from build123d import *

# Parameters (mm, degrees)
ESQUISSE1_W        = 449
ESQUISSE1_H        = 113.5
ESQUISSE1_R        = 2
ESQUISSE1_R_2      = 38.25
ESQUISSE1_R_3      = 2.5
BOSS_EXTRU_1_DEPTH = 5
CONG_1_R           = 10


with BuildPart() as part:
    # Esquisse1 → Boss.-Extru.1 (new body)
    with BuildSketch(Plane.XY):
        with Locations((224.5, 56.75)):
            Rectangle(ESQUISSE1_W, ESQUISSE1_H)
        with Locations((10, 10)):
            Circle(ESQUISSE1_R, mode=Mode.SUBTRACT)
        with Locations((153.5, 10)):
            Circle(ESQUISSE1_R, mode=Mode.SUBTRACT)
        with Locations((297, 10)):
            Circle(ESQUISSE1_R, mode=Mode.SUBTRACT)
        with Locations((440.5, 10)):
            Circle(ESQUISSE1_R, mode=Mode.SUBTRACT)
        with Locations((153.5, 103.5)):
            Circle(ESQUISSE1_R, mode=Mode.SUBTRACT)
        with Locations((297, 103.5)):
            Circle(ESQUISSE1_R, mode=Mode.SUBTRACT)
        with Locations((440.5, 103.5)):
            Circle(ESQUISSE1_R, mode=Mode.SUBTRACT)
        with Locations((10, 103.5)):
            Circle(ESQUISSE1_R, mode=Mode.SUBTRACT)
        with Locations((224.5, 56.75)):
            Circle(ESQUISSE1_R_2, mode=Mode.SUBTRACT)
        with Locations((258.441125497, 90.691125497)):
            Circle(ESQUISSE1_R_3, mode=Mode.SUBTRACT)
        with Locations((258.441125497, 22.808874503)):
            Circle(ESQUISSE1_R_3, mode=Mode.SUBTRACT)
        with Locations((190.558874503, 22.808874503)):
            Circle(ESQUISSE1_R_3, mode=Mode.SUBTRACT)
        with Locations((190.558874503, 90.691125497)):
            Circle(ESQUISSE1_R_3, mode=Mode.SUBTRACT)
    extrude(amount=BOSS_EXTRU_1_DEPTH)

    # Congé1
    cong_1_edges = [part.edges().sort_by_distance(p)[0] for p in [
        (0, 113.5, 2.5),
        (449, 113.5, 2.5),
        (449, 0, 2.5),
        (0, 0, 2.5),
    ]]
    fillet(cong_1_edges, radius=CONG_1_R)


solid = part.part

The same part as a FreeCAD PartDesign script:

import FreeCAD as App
import Part
import Sketcher
from FreeCAD import Vector
Q = App.Units.Quantity


def edges_at(feature, points):
    """Names of the edges that pass closest to the given points."""
    edges = feature.Shape.Edges
    near = lambda p: min(range(len(edges)), key=lambda i: edges[i].distToShape(Part.Vertex(*p))[0])
    return sorted({f"Edge{near(p) + 1}" for p in points})


def add_polygon(sketch, points):
    """Adds a closed chain of lines whose ends are joined by coincident constraints."""
    first, n = sketch.GeometryCount, len(points)
    for a, b in zip(points, points[1:] + points[:1]):
        sketch.addGeometry(Part.LineSegment(App.Vector(*a, 0), App.Vector(*b, 0)), False)
    for i in range(n):
        sketch.addConstraint(Sketcher.Constraint("Coincident", first + i, 2, first + (i + 1) % n, 1))

doc = App.newDocument("Part")
body = doc.addObject("PartDesign::Body", "Body")

sketch1 = body.newObject("Sketcher::SketchObject", "Sketch")
sketch1.AttachmentSupport = (doc.getObject("XY_Plane"), [""])
sketch1.MapMode = "FlatFace"
add_polygon(sketch1, [(0, 113.5), (0, 0), (449, 0), (449, 113.5)])
sketch1.addGeometry(Part.Circle(Vector(10, 10, 0), Vector(0, 0, 1), 2), False)
sketch1.addGeometry(Part.Circle(Vector(153.5, 10, 0), Vector(0, 0, 1), 2), False)
sketch1.addGeometry(Part.Circle(Vector(190.6, 22.8, 0), Vector(0, 0, 1), 2.5), False)
sketch1.addGeometry(Part.Circle(Vector(297, 10, 0), Vector(0, 0, 1), 2), False)
sketch1.addGeometry(Part.Circle(Vector(258.4, 22.8, 0), Vector(0, 0, 1), 2.5), False)
sketch1.addGeometry(Part.Circle(Vector(440.5, 10, 0), Vector(0, 0, 1), 2), False)
sketch1.addGeometry(Part.Circle(Vector(224.5, 56.8, 0), Vector(0, 0, 1), 38.2), False)
sketch1.addGeometry(Part.Circle(Vector(10, 103.5, 0), Vector(0, 0, 1), 2), False)
sketch1.addGeometry(Part.Circle(Vector(190.6, 90.7, 0), Vector(0, 0, 1), 2.5), False)
sketch1.addGeometry(Part.Circle(Vector(153.5, 103.5, 0), Vector(0, 0, 1), 2), False)
sketch1.addGeometry(Part.Circle(Vector(258.4, 90.7, 0), Vector(0, 0, 1), 2.5), False)
sketch1.addGeometry(Part.Circle(Vector(297, 103.5, 0), Vector(0, 0, 1), 2), False)
sketch1.addGeometry(Part.Circle(Vector(440.5, 103.5, 0), Vector(0, 0, 1), 2), False)
sketch1.addConstraint(Sketcher.Constraint("Vertical", 0))
sketch1.addConstraint(Sketcher.Constraint("Horizontal", 1))
sketch1.addConstraint(Sketcher.Constraint("Vertical", 2))
sketch1.addConstraint(Sketcher.Constraint("Horizontal", 3))
sketch1.addConstraint(Sketcher.Constraint("Coincident", 0, 2, -1, 1))
sketch1.addConstraint(Sketcher.Constraint("Equal", 4, 5))
sketch1.addConstraint(Sketcher.Constraint("Equal", 5, 7))
sketch1.addConstraint(Sketcher.Constraint("Equal", 6, 8))
sketch1.addConstraint(Sketcher.Constraint("Equal", 7, 9))
sketch1.addConstraint(Sketcher.Constraint("Equal", 9, 11))
sketch1.addConstraint(Sketcher.Constraint("Equal", 8, 12))
sketch1.addConstraint(Sketcher.Constraint("Equal", 11, 13))
sketch1.addConstraint(Sketcher.Constraint("Equal", 12, 14))
sketch1.addConstraint(Sketcher.Constraint("Equal", 13, 15))
sketch1.addConstraint(Sketcher.Constraint("Equal", 15, 16))
sketch1.addConstraint(Sketcher.Constraint("Horizontal", 4, 3, 5, 3))
sketch1.addConstraint(Sketcher.Constraint("Horizontal", 5, 3, 7, 3))
sketch1.addConstraint(Sketcher.Constraint("Horizontal", 6, 3, 8, 3))
sketch1.addConstraint(Sketcher.Constraint("Horizontal", 7, 3, 9, 3))
sketch1.addConstraint(Sketcher.Constraint("Horizontal", 11, 3, 13, 3))
sketch1.addConstraint(Sketcher.Constraint("Horizontal", 12, 3, 14, 3))
sketch1.addConstraint(Sketcher.Constraint("Horizontal", 13, 3, 15, 3))
sketch1.addConstraint(Sketcher.Constraint("Horizontal", 15, 3, 16, 3))
sketch1.addConstraint(Sketcher.Constraint("Vertical", 4, 3, 11, 3))
sketch1.addConstraint(Sketcher.Constraint("Vertical", 6, 3, 12, 3))
sketch1.addConstraint(Sketcher.Constraint("Vertical", 5, 3, 13, 3))
sketch1.addConstraint(Sketcher.Constraint("Vertical", 8, 3, 14, 3))
sketch1.addConstraint(Sketcher.Constraint("Vertical", 7, 3, 15, 3))
sketch1.addConstraint(Sketcher.Constraint("Vertical", 9, 3, 16, 3))
sketch1.addConstraint(Sketcher.Constraint("Diameter", 4, Q("4 mm")))
sketch1.addConstraint(Sketcher.Constraint("Diameter", 6, Q("5 mm")))
sketch1.addConstraint(Sketcher.Constraint("Diameter", 10, Q("76.5 mm")))
sketch1.addConstraint(Sketcher.Constraint("DistanceX", 1, 1, 1, 2, Q("449 mm")))
sketch1.addConstraint(Sketcher.Constraint("DistanceY", 0, 2, 0, 1, Q("113.5 mm")))
sketch1.addConstraint(Sketcher.Constraint("DistanceX", -1, 1, 4, 3, Q("10 mm")))
sketch1.addConstraint(Sketcher.Constraint("DistanceY", -1, 1, 4, 3, Q("10 mm")))
sketch1.addConstraint(Sketcher.Constraint("DistanceX", -1, 1, 7, 3, Q("297 mm")))
sketch1.addConstraint(Sketcher.Constraint("DistanceX", 5, 3, 9, 3, Q("287 mm")))
sketch1.addConstraint(Sketcher.Constraint("DistanceX", 5, 3, 10, 3, Q("71 mm")))
sketch1.addConstraint(Sketcher.Constraint("DistanceY", 16, 3, 2, 2, Q("10 mm")))
sketch1.addConstraint(Sketcher.Constraint("DistanceX", -1, 1, 5, 3, Q("153.5 mm")))
sketch1.addConstraint(Sketcher.Constraint("DistanceY", -1, 1, 10, 3, Q("56.75 mm")))
sketch1.addConstraint(Sketcher.Constraint("DistanceX", 6, 3, 8, 3, Q("67.882251 mm")))
sketch1.addConstraint(Sketcher.Constraint("DistanceY", 6, 3, 12, 3, Q("67.882251 mm")))
sketch1.addConstraint(Sketcher.Constraint("DistanceX", -1, 1, 6, 3, Q("190.558875 mm")))
sketch1.addConstraint(Sketcher.Constraint("DistanceY", -1, 1, 6, 3, Q("22.808875 mm")))
pad1 = body.newObject("PartDesign::Pad", "Pad")
pad1.Profile = sketch1
pad1.Length = 5
doc.recompute()

fillet = body.newObject("PartDesign::Fillet", "Fillet")
fillet.Base = (pad1, edges_at(pad1, [
    (0, 113.5, 2.5),
    (449, 113.5, 2.5),
    (449, 0, 2.5),
    (0, 0, 2.5),
]))
fillet.Radius = 10

doc.recompute()
